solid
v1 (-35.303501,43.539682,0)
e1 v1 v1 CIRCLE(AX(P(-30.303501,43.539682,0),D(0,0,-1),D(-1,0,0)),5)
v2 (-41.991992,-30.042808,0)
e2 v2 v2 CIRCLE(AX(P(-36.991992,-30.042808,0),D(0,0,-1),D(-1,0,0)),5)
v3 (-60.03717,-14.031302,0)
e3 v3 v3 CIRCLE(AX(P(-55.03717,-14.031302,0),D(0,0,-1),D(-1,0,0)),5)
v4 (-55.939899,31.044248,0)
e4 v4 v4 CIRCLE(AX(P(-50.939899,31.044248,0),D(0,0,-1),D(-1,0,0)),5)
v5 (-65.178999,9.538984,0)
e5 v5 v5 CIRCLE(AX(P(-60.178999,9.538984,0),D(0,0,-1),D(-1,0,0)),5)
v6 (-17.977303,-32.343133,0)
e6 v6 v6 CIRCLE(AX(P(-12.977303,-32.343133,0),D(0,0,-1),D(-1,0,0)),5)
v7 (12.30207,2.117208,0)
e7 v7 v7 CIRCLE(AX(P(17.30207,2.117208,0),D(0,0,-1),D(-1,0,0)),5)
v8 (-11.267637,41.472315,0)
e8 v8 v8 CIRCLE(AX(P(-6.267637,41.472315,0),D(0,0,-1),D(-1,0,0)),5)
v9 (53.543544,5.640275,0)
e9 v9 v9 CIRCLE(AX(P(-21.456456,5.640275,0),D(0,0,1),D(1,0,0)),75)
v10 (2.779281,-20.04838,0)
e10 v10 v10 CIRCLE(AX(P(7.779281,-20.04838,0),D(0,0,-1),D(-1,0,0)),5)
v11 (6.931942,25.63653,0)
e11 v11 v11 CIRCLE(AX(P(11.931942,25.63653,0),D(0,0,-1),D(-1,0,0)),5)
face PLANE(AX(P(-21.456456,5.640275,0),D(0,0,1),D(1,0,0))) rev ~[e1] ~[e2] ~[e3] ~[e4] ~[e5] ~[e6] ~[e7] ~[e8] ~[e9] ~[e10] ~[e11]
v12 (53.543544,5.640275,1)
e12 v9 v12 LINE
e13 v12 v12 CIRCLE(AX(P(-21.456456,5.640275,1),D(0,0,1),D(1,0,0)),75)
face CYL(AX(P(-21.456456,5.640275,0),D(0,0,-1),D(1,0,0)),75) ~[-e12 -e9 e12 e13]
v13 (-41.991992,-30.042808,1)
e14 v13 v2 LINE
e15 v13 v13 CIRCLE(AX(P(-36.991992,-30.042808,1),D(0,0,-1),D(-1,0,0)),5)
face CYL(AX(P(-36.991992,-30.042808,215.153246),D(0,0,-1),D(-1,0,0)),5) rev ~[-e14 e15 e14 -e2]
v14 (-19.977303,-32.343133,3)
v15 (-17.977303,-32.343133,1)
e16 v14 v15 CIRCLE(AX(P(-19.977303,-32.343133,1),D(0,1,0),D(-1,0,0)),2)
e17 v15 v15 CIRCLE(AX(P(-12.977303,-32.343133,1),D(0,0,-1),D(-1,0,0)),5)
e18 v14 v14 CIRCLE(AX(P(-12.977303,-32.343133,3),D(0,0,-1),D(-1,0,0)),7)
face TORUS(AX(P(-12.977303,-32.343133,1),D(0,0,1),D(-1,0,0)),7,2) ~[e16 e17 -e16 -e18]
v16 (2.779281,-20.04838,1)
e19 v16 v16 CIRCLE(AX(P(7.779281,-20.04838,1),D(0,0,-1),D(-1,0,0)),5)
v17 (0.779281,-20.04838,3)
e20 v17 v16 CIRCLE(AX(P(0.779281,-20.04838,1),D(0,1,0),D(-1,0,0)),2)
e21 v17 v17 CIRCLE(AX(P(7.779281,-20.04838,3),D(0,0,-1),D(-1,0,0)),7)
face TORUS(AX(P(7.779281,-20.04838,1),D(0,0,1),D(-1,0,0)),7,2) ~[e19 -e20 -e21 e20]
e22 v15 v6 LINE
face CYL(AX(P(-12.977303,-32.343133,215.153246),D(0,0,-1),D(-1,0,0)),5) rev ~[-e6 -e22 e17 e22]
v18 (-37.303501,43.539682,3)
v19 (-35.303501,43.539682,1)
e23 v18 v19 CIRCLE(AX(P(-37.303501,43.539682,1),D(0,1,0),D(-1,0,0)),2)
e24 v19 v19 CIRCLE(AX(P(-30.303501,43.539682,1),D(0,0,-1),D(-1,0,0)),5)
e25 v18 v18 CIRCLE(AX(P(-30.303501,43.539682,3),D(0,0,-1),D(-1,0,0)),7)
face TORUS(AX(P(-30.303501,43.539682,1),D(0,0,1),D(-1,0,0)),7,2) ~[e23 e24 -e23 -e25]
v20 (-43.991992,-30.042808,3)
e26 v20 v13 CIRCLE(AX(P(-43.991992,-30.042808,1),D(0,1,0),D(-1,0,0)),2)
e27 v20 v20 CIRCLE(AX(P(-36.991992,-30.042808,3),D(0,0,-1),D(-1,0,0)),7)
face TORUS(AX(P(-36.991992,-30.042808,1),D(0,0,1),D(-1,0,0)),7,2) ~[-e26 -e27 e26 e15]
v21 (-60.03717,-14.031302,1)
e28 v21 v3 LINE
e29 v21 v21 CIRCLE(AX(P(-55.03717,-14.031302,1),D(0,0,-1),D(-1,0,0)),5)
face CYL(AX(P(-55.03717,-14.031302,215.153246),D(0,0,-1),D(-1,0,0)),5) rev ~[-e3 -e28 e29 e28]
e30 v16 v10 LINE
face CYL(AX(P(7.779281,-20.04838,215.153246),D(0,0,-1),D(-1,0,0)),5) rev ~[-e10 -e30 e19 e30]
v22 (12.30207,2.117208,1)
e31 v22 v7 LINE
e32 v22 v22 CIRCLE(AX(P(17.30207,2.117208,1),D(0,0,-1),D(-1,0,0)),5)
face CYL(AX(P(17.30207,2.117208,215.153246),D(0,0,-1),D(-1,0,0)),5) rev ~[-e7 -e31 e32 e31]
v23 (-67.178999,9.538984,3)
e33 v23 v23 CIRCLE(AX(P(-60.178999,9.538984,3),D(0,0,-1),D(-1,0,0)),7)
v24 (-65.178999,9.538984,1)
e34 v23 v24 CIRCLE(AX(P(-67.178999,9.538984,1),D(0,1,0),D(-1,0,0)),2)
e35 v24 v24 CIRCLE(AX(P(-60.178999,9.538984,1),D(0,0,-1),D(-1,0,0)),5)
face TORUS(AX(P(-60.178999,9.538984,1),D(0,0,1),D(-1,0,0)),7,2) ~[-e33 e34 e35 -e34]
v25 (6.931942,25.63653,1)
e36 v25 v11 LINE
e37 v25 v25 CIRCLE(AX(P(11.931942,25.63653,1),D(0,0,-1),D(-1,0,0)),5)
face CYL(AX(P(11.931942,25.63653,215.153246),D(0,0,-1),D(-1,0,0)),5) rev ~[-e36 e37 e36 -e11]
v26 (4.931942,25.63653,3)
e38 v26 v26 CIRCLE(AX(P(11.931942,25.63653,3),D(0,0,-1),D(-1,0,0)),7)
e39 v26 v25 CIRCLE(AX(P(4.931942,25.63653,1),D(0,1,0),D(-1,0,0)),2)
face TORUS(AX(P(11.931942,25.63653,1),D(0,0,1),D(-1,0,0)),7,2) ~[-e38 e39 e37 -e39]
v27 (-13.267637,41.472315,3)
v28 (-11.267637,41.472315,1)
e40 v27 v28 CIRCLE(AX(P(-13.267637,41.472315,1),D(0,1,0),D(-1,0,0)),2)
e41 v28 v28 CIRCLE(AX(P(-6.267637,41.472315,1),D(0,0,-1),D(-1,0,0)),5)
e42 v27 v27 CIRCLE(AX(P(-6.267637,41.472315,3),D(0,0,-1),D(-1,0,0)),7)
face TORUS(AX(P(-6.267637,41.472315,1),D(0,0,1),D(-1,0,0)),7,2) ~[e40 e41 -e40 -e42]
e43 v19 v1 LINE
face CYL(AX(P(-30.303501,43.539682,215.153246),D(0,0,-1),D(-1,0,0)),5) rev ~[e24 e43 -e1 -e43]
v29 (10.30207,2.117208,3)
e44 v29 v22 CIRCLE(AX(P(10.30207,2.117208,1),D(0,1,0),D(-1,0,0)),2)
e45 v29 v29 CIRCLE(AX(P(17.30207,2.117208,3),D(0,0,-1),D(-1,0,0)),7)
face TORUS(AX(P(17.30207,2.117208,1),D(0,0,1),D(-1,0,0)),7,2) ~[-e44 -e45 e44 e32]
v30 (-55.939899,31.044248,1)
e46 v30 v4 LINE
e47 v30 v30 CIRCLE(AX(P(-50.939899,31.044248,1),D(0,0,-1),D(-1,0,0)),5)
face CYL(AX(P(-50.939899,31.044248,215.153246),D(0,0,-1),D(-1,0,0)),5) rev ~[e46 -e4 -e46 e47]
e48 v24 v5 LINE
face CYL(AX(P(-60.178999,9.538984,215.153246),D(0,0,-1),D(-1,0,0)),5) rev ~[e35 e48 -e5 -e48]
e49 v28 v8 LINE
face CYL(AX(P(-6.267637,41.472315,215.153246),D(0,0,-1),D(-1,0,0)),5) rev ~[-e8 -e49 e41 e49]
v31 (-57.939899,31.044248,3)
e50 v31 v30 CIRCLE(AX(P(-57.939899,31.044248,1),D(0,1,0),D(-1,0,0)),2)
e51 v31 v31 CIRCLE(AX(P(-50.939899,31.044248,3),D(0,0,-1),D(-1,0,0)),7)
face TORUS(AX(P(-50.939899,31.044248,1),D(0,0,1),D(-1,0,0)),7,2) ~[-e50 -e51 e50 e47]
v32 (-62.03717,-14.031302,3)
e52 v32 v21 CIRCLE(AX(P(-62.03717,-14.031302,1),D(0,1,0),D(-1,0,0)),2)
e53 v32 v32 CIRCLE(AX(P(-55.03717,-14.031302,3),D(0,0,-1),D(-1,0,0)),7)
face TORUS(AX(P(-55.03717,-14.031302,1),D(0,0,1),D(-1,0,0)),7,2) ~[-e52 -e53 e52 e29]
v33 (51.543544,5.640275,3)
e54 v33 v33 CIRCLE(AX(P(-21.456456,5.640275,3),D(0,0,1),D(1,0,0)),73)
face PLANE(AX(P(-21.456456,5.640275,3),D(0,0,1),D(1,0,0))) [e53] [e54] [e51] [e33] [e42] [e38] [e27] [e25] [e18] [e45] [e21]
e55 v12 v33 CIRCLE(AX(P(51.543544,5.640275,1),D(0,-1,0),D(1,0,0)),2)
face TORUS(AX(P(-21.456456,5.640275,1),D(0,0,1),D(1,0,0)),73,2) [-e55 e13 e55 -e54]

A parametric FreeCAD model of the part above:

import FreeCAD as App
import Part
import Sketcher
from FreeCAD import Vector
Q = App.Units.Quantity


def edges_at(feature, points):
    """Names of the edges that pass closest to the given points."""
    edges = feature.Shape.Edges
    near = lambda p: min(range(len(edges)), key=lambda i: edges[i].distToShape(Part.Vertex(*p))[0])
    return sorted({f"Edge{near(p) + 1}" for p in points})

doc = App.newDocument("Part")
body = doc.addObject("PartDesign::Body", "Body")

# Sketch on XY plane
sketch1 = body.newObject("Sketcher::SketchObject", "Sketch")
sketch1.AttachmentSupport = (doc.getObject("XY_Plane"), [""])
sketch1.MapMode = "FlatFace"
sketch1.addGeometry(Part.Circle(Vector(-21, 6, 0), Vector(0, 0, 1), 75), False)
sketch1.addConstraint([
    Sketcher.Constraint("Diameter", 0, Q("150 mm")),
    Sketcher.Constraint("DistanceX", 0, 3, -1, 1, Q("21.456456 mm")),
    Sketcher.Constraint("DistanceY", -1, 1, 0, 3, Q("5.640275 mm")),
])
pad1 = body.newObject("PartDesign::Pad", "Pad")
pad1.Profile = sketch1
pad1.Length = 3

# Sketch on XY plane
sketch2 = body.newObject("Sketcher::SketchObject", "Sketch001")
sketch2.AttachmentSupport = (doc.getObject("XY_Plane"), [""])
sketch2.MapMode = "FlatFace"
sketch2.AttachmentOffset = App.Placement(Vector(0, 0, 3), App.Rotation())
sketch2.addGeometry([
    Part.Circle(Vector(-51, 31, 0), Vector(0, 0, 1), 5),  # 0
    Part.Circle(Vector(-30, 44, 0), Vector(0, 0, 1), 5),  # 1
    Part.Circle(Vector(-6, 41, 0), Vector(0, 0, 1), 5),  # 2
    Part.Circle(Vector(12, 26, 0), Vector(0, 0, 1), 5),  # 3
    Part.Circle(Vector(17, 2, 0), Vector(0, 0, 1), 5),  # 4
    Part.Circle(Vector(8, -20, 0), Vector(0, 0, 1), 5),  # 5
    Part.Circle(Vector(-13, -32, 0), Vector(0, 0, 1), 5),  # 6
    Part.Circle(Vector(-37, -30, 0), Vector(0, 0, 1), 5),  # 7
    Part.Circle(Vector(-55, -14, 0), Vector(0, 0, 1), 5),  # 8
    Part.Circle(Vector(-60, 10, 0), Vector(0, 0, 1), 5),  # 9
], False)
sketch2.addConstraint([
    Sketcher.Constraint("Equal", 0, 1),
    Sketcher.Constraint("Equal", 1, 2),
    Sketcher.Constraint("Equal", 2, 3),
    Sketcher.Constraint("Equal", 3, 4),
    Sketcher.Constraint("Equal", 4, 5),
    Sketcher.Constraint("Equal", 5, 6),
    Sketcher.Constraint("Equal", 6, 7),
    Sketcher.Constraint("Equal", 7, 8),
    Sketcher.Constraint("Equal", 8, 9),
    Sketcher.Constraint("Diameter", 0, Q("10 mm")),
    Sketcher.Constraint("DistanceX", 9, 3, -1, 1, Q("60.178999 mm")),
    Sketcher.Constraint("DistanceX", 0, 3, -1, 1, Q("50.939899 mm")),
    Sketcher.Constraint("DistanceX", 1, 3, -1, 1, Q("30.303501 mm")),
    Sketcher.Constraint("DistanceX", -1, 1, 3, 3, Q("11.931942 mm")),
    Sketcher.Constraint("DistanceY", -1, 1, 3, 3, Q("25.63653 mm")),
    Sketcher.Constraint("DistanceX", -1, 1, 4, 3, Q("17.30207 mm")),
    Sketcher.Constraint("DistanceY", -1, 1, 4, 3, Q("2.117208 mm")),
    Sketcher.Constraint("DistanceX", -1, 1, 5, 3, Q("7.779281 mm")),
    Sketcher.Constraint("DistanceY", 5, 3, -1, 1, Q("20.04838 mm")),
    Sketcher.Constraint("DistanceY", 7, 3, -1, 1, Q("30.042808 mm")),
    Sketcher.Constraint("DistanceX", 8, 3, -1, 1, Q("55.03717 mm")),
    Sketcher.Constraint("DistanceX", 0, 3, 2, 3, Q("44.672262 mm")),
    Sketcher.Constraint("DistanceY", 3, 3, 1, 3, Q("17.903152 mm")),
    Sketcher.Constraint("DistanceY", 4, 3, 0, 3, Q("28.92704 mm")),
    Sketcher.Constraint("DistanceY", 6, 3, 4, 3, Q("34.460341 mm")),
    Sketcher.Constraint("DistanceY", 6, 3, 2, 3, Q("73.815448 mm")),
    Sketcher.Constraint("DistanceX", 7, 3, 6, 3, Q("24.014689 mm")),
    Sketcher.Constraint("DistanceX", 7, 3, 1, 3, Q("6.688491 mm")),
    Sketcher.Constraint("DistanceY", 8, 3, 0, 3, Q("45.07555 mm")),
    Sketcher.Constraint("DistanceY", 9, 3, 2, 3, Q("31.933331 mm")),
])
doc.recompute()
hole = body.newObject("PartDesign::Hole", "Hole")
hole.Profile = sketch2
hole.ThreadType = "None"
hole.Diameter = 10
hole.DepthType = "ThroughAll"
doc.recompute()

fillet = body.newObject("PartDesign::Fillet", "Fillet")
fillet.Base = (hole, edges_at(hole, [
    (-96.456, 5.64, 3),
    (-31.992, -30.043, 3),
    (-50.037, -14.031, 3),
    (-7.977, -32.343, 3),
    (12.779, -20.048, 3),
    (22.302, 2.117, 3),
    (-55.179, 9.539, 3),
    (-45.94, 31.044, 3),
    (-25.304, 43.54, 3),
    (16.932, 25.637, 3),
    (-1.268, 41.472, 3),
]))
fillet.Radius = 2

doc.recompute()
